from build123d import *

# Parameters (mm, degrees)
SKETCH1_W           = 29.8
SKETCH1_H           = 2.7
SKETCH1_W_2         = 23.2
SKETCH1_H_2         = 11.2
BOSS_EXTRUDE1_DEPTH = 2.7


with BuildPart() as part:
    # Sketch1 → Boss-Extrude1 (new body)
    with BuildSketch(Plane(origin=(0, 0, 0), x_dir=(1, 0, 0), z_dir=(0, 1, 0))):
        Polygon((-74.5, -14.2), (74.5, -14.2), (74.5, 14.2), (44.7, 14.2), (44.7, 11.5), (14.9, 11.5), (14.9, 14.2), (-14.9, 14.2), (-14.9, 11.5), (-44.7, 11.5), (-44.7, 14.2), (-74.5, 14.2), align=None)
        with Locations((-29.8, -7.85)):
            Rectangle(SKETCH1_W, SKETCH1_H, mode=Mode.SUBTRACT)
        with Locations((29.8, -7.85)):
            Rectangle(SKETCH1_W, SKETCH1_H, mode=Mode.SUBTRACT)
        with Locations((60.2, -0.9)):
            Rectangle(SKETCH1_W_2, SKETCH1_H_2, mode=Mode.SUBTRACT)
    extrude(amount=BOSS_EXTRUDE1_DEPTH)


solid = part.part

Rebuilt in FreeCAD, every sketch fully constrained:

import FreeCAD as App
import Part
import Sketcher


def add_polygon(sketch, points):
    """Adds a closed chain of lines whose ends are joined by coincident constraints."""
    first, n = sketch.GeometryCount, len(points)
    for a, b in zip(points, points[1:] + points[:1]):
        sketch.addGeometry(Part.LineSegment(App.Vector(*a, 0), App.Vector(*b, 0)), False)
    for i in range(n):
        sketch.addConstraint(Sketcher.Constraint("Coincident", first + i, 2, first + (i + 1) % n, 1))

doc = App.newDocument("Part")
body = doc.addObject("PartDesign::Body", "Body")

# Sketch on XZ plane
sketch1 = body.newObject("Sketcher::SketchObject", "Sketch")
sketch1.AttachmentSupport = (doc.getObject("XZ_Plane"), [""])
sketch1.MapMode = "FlatFace"
add_polygon(sketch1, [(-74.5, 14.2), (74.5, 14.2), (74.5, -14.2), (44.7, -14.2), (44.7, -11.5), (14.9, -11.5), (14.9, -14.2), (-14.9, -14.2), (-14.9, -11.5), (-44.7, -11.5), (-44.7, -14.2), (-74.5, -14.2)])  # lines 0-11
add_polygon(sketch1, [(-14.9, 9.2), (-44.7, 9.2), (-44.7, 6.5), (-14.9, 6.5)])  # lines 12-15
add_polygon(sketch1, [(44.7, 9.2), (14.9, 9.2), (14.9, 6.5), (44.7, 6.5)])  # lines 16-19
add_polygon(sketch1, [(71.8, 6.5), (48.6, 6.5), (48.6, -4.7), (71.8, -4.7)])  # lines 20-23
sketch1.addConstraint([
    Sketcher.Constraint("Horizontal", 0),
    Sketcher.Constraint("Vertical", 1),
    Sketcher.Constraint("Horizontal", 2),
    Sketcher.Constraint("Vertical", 3),
    Sketcher.Constraint("Horizontal", 4),
    Sketcher.Constraint("Vertical", 5),
    Sketcher.Constraint("Horizontal", 6),
    Sketcher.Constraint("Vertical", 7),
    Sketcher.Constraint("Horizontal", 8),
    Sketcher.Constraint("Vertical", 9),
    Sketcher.Constraint("Horizontal", 10),
    Sketcher.Constraint("Vertical", 11),
    Sketcher.Constraint("Horizontal", 12),
    Sketcher.Constraint("Vertical", 13),
    Sketcher.Constraint("Horizontal", 14),
    Sketcher.Constraint("Vertical", 15),
    Sketcher.Constraint("Horizontal", 16),
    Sketcher.Constraint("Vertical", 17),
    Sketcher.Constraint("Horizontal", 18),
    Sketcher.Constraint("Vertical", 19),
    Sketcher.Constraint("Horizontal", 20),
    Sketcher.Constraint("Vertical", 21),
    Sketcher.Constraint("Horizontal", 22),
    Sketcher.Constraint("Vertical", 23),
    Sketcher.Constraint("Symmetric", 0, 2, 10, 2, -1, 1),
    Sketcher.Constraint("Symmetric", 4, 2, 7, 2, -2),
    Sketcher.Constraint("Symmetric", 2, 2, 9, 2, -2),
    Sketcher.Constraint("Symmetric", 15, 2, 16, 2, -2),
    Sketcher.Constraint("Symmetric", 13, 2, 18, 2, -2),
    Sketcher.Constraint("Horizontal", 2, 2, 5, 2),
    Sketcher.Constraint("Horizontal", 18, 2, 20, 2),
    Sketcher.Constraint("Vertical", 9, 2, 12, 2),
    Sketcher.Constraint("Vertical", 7, 2, 14, 2),
    Sketcher.Constraint("Equal", 2, 4),
    Sketcher.Constraint("Equal", 4, 6),
    Sketcher.Constraint("Equal", 9, 13),
    Sketcher.Constraint("DistanceX", 0, 1, 0, 2, 149.0),
    Sketcher.Constraint("DistanceX", 20, 2, 20, 1, 23.2),
    Sketcher.Constraint("DistanceY", 1, 2, 1, 1, 28.4),
    Sketcher.Constraint("DistanceY", 3, 1, 3, 2, 2.7),
    Sketcher.Constraint("DistanceY", 21, 2, 21, 1, 11.2),
    Sketcher.Constraint("DistanceY", 12, 2, 11, 2, 5.0),
    Sketcher.Constraint("DistanceX", -1, 1, 20, 2, 48.6),
])
pad1 = body.newObject("PartDesign::Pad", "Pad")
pad1.Profile = sketch1
pad1.Length = 2.7
pad1.Reversed = True

doc.recompute()
